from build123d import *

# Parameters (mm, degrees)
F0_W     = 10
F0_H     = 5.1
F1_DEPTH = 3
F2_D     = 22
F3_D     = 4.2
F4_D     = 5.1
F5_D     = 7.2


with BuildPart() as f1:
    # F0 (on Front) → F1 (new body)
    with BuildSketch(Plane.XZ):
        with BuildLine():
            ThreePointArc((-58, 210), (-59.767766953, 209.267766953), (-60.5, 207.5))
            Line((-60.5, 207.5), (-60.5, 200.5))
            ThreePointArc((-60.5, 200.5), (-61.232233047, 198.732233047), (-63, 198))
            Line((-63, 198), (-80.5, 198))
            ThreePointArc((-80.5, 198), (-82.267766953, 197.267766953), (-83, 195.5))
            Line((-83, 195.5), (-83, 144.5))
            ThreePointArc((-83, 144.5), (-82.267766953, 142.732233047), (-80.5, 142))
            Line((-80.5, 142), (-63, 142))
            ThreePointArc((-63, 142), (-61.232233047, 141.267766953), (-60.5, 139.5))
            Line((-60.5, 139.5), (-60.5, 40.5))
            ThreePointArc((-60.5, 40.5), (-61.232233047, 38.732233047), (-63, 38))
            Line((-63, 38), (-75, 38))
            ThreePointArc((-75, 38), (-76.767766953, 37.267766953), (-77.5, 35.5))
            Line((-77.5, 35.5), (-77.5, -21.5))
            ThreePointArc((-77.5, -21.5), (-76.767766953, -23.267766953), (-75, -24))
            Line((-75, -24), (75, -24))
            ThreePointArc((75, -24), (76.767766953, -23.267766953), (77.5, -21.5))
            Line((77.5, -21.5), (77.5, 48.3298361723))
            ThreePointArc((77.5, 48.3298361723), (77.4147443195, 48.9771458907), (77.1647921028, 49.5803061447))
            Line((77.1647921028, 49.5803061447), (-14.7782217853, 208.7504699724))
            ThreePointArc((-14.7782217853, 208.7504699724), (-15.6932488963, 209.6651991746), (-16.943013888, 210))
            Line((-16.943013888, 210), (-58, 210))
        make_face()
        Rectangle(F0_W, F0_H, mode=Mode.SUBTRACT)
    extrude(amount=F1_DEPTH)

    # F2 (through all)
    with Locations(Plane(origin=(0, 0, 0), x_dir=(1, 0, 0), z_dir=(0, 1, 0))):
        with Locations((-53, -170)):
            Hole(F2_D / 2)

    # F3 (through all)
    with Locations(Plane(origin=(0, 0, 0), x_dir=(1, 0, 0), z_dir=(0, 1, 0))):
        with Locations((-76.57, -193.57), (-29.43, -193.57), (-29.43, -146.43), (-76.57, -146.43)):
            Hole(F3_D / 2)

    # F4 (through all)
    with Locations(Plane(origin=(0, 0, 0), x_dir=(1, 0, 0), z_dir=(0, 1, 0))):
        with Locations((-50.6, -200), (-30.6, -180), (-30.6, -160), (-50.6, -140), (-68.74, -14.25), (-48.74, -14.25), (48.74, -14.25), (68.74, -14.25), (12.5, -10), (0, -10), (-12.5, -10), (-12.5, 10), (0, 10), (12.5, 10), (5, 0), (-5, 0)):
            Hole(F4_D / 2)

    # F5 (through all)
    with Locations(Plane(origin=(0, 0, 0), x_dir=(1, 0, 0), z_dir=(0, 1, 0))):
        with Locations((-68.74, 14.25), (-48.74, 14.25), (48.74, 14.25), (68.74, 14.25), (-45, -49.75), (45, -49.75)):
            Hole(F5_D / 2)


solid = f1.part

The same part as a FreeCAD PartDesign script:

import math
import FreeCAD as App
import Part
import Sketcher


def add_polygon(sketch, points):
    """Adds a closed chain of lines whose ends are joined by coincident constraints."""
    first, n = sketch.GeometryCount, len(points)
    for a, b in zip(points, points[1:] + points[:1]):
        sketch.addGeometry(Part.LineSegment(App.Vector(*a, 0), App.Vector(*b, 0)), False)
    for i in range(n):
        sketch.addConstraint(Sketcher.Constraint("Coincident", first + i, 2, first + (i + 1) % n, 1))

doc = App.newDocument("Part")
body = doc.addObject("PartDesign::Body", "Body")

sketch1 = body.newObject("Sketcher::SketchObject", "Sketch")
sketch1.AttachmentSupport = (doc.getObject("XZ_Plane"), [""])
sketch1.MapMode = "FlatFace"
sketch1.addGeometry(Part.ArcOfCircle(Part.Circle(App.Vector(-58, 207.5, 0), App.Vector(0, 0, 1), 2.5), math.radians(90), math.radians(180)), False)
sketch1.addGeometry(Part.LineSegment(App.Vector(-60.5, 207.5, 0), App.Vector(-60.5, 200.5, 0)), False)
sketch1.addGeometry(Part.ArcOfCircle(Part.Circle(App.Vector(-63, 200.5, 0), App.Vector(0, 0, 1), 2.5), math.radians(-90), math.radians(0)), False)
sketch1.addGeometry(Part.LineSegment(App.Vector(-63, 198, 0), App.Vector(-80.5, 198, 0)), False)
sketch1.addGeometry(Part.ArcOfCircle(Part.Circle(App.Vector(-80.5, 195.5, 0), App.Vector(0, 0, 1), 2.5), math.radians(90), math.radians(180)), False)
sketch1.addGeometry(Part.LineSegment(App.Vector(-83, 195.5, 0), App.Vector(-83, 144.5, 0)), False)
sketch1.addGeometry(Part.ArcOfCircle(Part.Circle(App.Vector(-80.5, 144.5, 0), App.Vector(0, 0, 1), 2.5), math.radians(180), math.radians(270)), False)
sketch1.addGeometry(Part.LineSegment(App.Vector(-80.5, 142, 0), App.Vector(-63, 142, 0)), False)
sketch1.addGeometry(Part.ArcOfCircle(Part.Circle(App.Vector(-63, 139.5, 0), App.Vector(0, 0, 1), 2.5), math.radians(0), math.radians(90)), False)
sketch1.addGeometry(Part.LineSegment(App.Vector(-60.5, 139.5, 0), App.Vector(-60.5, 40.5, 0)), False)
sketch1.addGeometry(Part.ArcOfCircle(Part.Circle(App.Vector(-63, 40.5, 0), App.Vector(0, 0, 1), 2.5), math.radians(-90), math.radians(0)), False)
sketch1.addGeometry(Part.LineSegment(App.Vector(-63, 38, 0), App.Vector(-75, 38, 0)), False)
sketch1.addGeometry(Part.ArcOfCircle(Part.Circle(App.Vector(-75, 35.5, 0), App.Vector(0, 0, 1), 2.5), math.radians(90), math.radians(180)), False)
sketch1.addGeometry(Part.LineSegment(App.Vector(-77.5, 35.5, 0), App.Vector(-77.5, -21.5, 0)), False)
sketch1.addGeometry(Part.ArcOfCircle(Part.Circle(App.Vector(-75, -21.5, 0), App.Vector(0, 0, 1), 2.5), math.radians(180), math.radians(270)), False)
sketch1.addGeometry(Part.LineSegment(App.Vector(-75, -24, 0), App.Vector(75, -24, 0)), False)
sketch1.addGeometry(Part.ArcOfCircle(Part.Circle(App.Vector(75, -21.5, 0), App.Vector(0, 0, 1), 2.5), math.radians(-90), math.radians(0)), False)
sketch1.addGeometry(Part.LineSegment(App.Vector(77.5, -21.5, 0), App.Vector(77.5, 48.3, 0)), False)
sketch1.addGeometry(Part.ArcOfCircle(Part.Circle(App.Vector(75, 48.3, 0), App.Vector(0, 0, 1), 2.5), math.radians(0), math.radians(30)), False)
sketch1.addGeometry(Part.LineSegment(App.Vector(77.2, 49.6, 0), App.Vector(-14.8, 208.8, 0)), False)
sketch1.addGeometry(Part.ArcOfCircle(Part.Circle(App.Vector(-16.9, 207.5, 0), App.Vector(0, 0, 1), 2.5), math.radians(30), math.radians(90)), False)
sketch1.addGeometry(Part.LineSegment(App.Vector(-16.9, 210, 0), App.Vector(-58, 210, 0)), False)
add_polygon(sketch1, [(5, -2.5), (-5, -2.5), (-5, 2.5), (5, 2.5)])
sketch1.addConstraint(Sketcher.Constraint("Tangent", 0, 2, 1, 1))
sketch1.addConstraint(Sketcher.Constraint("Tangent", 1, 2, 2, 2))
sketch1.addConstraint(Sketcher.Constraint("Tangent", 2, 1, 3, 1))
sketch1.addConstraint(Sketcher.Constraint("Tangent", 3, 2, 4, 1))
sketch1.addConstraint(Sketcher.Constraint("Tangent", 4, 2, 5, 1))
sketch1.addConstraint(Sketcher.Constraint("Tangent", 5, 2, 6, 1))
sketch1.addConstraint(Sketcher.Constraint("Tangent", 6, 2, 7, 1))
sketch1.addConstraint(Sketcher.Constraint("Tangent", 7, 2, 8, 2))
sketch1.addConstraint(Sketcher.Constraint("Tangent", 8, 1, 9, 1))
sketch1.addConstraint(Sketcher.Constraint("Tangent", 9, 2, 10, 2))
sketch1.addConstraint(Sketcher.Constraint("Tangent", 10, 1, 11, 1))
sketch1.addConstraint(Sketcher.Constraint("Tangent", 11, 2, 12, 1))
sketch1.addConstraint(Sketcher.Constraint("Tangent", 12, 2, 13, 1))
sketch1.addConstraint(Sketcher.Constraint("Tangent", 13, 2, 14, 1))
sketch1.addConstraint(Sketcher.Constraint("Tangent", 14, 2, 15, 1))
sketch1.addConstraint(Sketcher.Constraint("Tangent", 15, 2, 16, 1))
sketch1.addConstraint(Sketcher.Constraint("Tangent", 16, 2, 17, 1))
sketch1.addConstraint(Sketcher.Constraint("Tangent", 17, 2, 18, 1))
sketch1.addConstraint(Sketcher.Constraint("Tangent", 18, 2, 19, 1))
sketch1.addConstraint(Sketcher.Constraint("Tangent", 19, 2, 20, 1))
sketch1.addConstraint(Sketcher.Constraint("Tangent", 20, 2, 21, 1))
sketch1.addConstraint(Sketcher.Constraint("Tangent", 21, 2, 0, 1))
sketch1.addConstraint(Sketcher.Constraint("Vertical", 1))
sketch1.addConstraint(Sketcher.Constraint("Horizontal", 3))
sketch1.addConstraint(Sketcher.Constraint("Vertical", 5))
sketch1.addConstraint(Sketcher.Constraint("Horizontal", 7))
sketch1.addConstraint(Sketcher.Constraint("Vertical", 9))
sketch1.addConstraint(Sketcher.Constraint("Horizontal", 11))
sketch1.addConstraint(Sketcher.Constraint("Vertical", 13))
sketch1.addConstraint(Sketcher.Constraint("Horizontal", 15))
sketch1.addConstraint(Sketcher.Constraint("Vertical", 17))
sketch1.addConstraint(Sketcher.Constraint("Horizontal", 21))
sketch1.addConstraint(Sketcher.Constraint("Horizontal", 22))
sketch1.addConstraint(Sketcher.Constraint("Vertical", 23))
sketch1.addConstraint(Sketcher.Constraint("Horizontal", 24))
sketch1.addConstraint(Sketcher.Constraint("Vertical", 25))
sketch1.addConstraint(Sketcher.Constraint("Equal", 0, 2))
sketch1.addConstraint(Sketcher.Constraint("Equal", 2, 4))
sketch1.addConstraint(Sketcher.Constraint("Equal", 4, 6))
sketch1.addConstraint(Sketcher.Constraint("Equal", 6, 8))
sketch1.addConstraint(Sketcher.Constraint("Equal", 8, 10))
sketch1.addConstraint(Sketcher.Constraint("Equal", 10, 12))
sketch1.addConstraint(Sketcher.Constraint("Equal", 12, 14))
sketch1.addConstraint(Sketcher.Constraint("Equal", 14, 16))
sketch1.addConstraint(Sketcher.Constraint("Equal", 16, 18))
sketch1.addConstraint(Sketcher.Constraint("Equal", 18, 20))
sketch1.addConstraint(Sketcher.Constraint("Symmetric", 22, 2, 24, 2, -1, 1))
sketch1.addConstraint(Sketcher.Constraint("Vertical", 2, 3, 8, 3))
sketch1.addConstraint(Sketcher.Constraint("Radius", 0, 2.5))
sketch1.addConstraint(Sketcher.Constraint("DistanceX", 11, 2, 11, 1, 12.0))
sketch1.addConstraint(Sketcher.Constraint("DistanceX", 15, 1, 15, 2, 150.0))
sketch1.addConstraint(Sketcher.Constraint("DistanceX", 22, 2, 22, 1, 10.0))
sketch1.addConstraint(Sketcher.Constraint("DistanceY", 1, 2, 1, 1, 7.0))
sketch1.addConstraint(Sketcher.Constraint("DistanceY", 5, 2, 5, 1, 51.0))
sketch1.addConstraint(Sketcher.Constraint("DistanceY", 9, 2, 9, 1, 99.0))
sketch1.addConstraint(Sketcher.Constraint("DistanceY", 13, 2, 13, 1, 57.0))
sketch1.addConstraint(Sketcher.Constraint("DistanceX", 3, 2, 3, 1, 17.5))
sketch1.addConstraint(Sketcher.Constraint("DistanceY", 23, 1, 23, 2, 5.1))
sketch1.addConstraint(Sketcher.Constraint("DistanceX", 0, 3, -1, 1, 58.0))
sketch1.addConstraint(Sketcher.Constraint("DistanceY", -1, 1, 2, 1, 198.0))
sketch1.addConstraint(Sketcher.Constraint("DistanceX", 21, 2, 21, 1, 41.056986))
sketch1.addConstraint(Sketcher.Constraint("DistanceY", 17, 1, 17, 2, 69.829836))
pad1 = body.newObject("PartDesign::Pad", "Pad")
pad1.Profile = sketch1
pad1.Length = 3

sketch2 = body.newObject("Sketcher::SketchObject", "Sketch001")
sketch2.AttachmentSupport = (doc.getObject("XZ_Plane"), [""])
sketch2.MapMode = "FlatFace"
sketch2.addGeometry(Part.Circle(App.Vector(-53, 170, 0), App.Vector(0, 0, 1), 11), False)
sketch2.addConstraint(Sketcher.Constraint("Diameter", 0, 22.0))
sketch2.addConstraint(Sketcher.Constraint("DistanceX", 0, 3, -1, 1, 53.0))
sketch2.addConstraint(Sketcher.Constraint("DistanceY", -1, 1, 0, 3, 170.0))
doc.recompute()
hole = body.newObject("PartDesign::Hole", "Hole")
hole.Profile = sketch2
hole.ThreadType = "None"
hole.Diameter = 22
hole.DepthType = "ThroughAll"
hole.Reversed = True

sketch3 = body.newObject("Sketcher::SketchObject", "Sketch002")
sketch3.AttachmentSupport = (doc.getObject("XZ_Plane"), [""])
sketch3.MapMode = "FlatFace"
sketch3.addGeometry(Part.Circle(App.Vector(-76.6, 193.6, 0), App.Vector(0, 0, 1), 2.1), False)
sketch3.addGeometry(Part.Circle(App.Vector(-29.4, 193.6, 0), App.Vector(0, 0, 1), 2.1), False)
sketch3.addGeometry(Part.Circle(App.Vector(-29.4, 146.4, 0), App.Vector(0, 0, 1), 2.1), False)
sketch3.addGeometry(Part.Circle(App.Vector(-76.6, 146.4, 0), App.Vector(0, 0, 1), 2.1), False)
sketch3.addConstraint(Sketcher.Constraint("Equal", 0, 1))
sketch3.addConstraint(Sketcher.Constraint("Equal", 1, 2))
sketch3.addConstraint(Sketcher.Constraint("Equal", 2, 3))
sketch3.addConstraint(Sketcher.Constraint("Horizontal", 0, 3, 1, 3))
sketch3.addConstraint(Sketcher.Constraint("Horizontal", 2, 3, 3, 3))
sketch3.addConstraint(Sketcher.Constraint("Vertical", 1, 3, 2, 3))
sketch3.addConstraint(Sketcher.Constraint("Vertical", 0, 3, 3, 3))
sketch3.addConstraint(Sketcher.Constraint("Diameter", 0, 4.2))
sketch3.addConstraint(Sketcher.Constraint("DistanceX", 0, 3, -1, 1, 76.57))
sketch3.addConstraint(Sketcher.Constraint("DistanceY", -1, 1, 0, 3, 193.57))
sketch3.addConstraint(Sketcher.Constraint("DistanceX", 1, 3, -1, 1, 29.43))
sketch3.addConstraint(Sketcher.Constraint("DistanceY", -1, 1, 2, 3, 146.43))
doc.recompute()
hole2 = body.newObject("PartDesign::Hole", "Hole001")
hole2.Profile = sketch3
hole2.ThreadType = "None"
hole2.Diameter = 4.2
hole2.DepthType = "ThroughAll"
hole2.Reversed = True

sketch4 = body.newObject("Sketcher::SketchObject", "Sketch003")
sketch4.AttachmentSupport = (doc.getObject("XZ_Plane"), [""])
sketch4.MapMode = "FlatFace"
sketch4.addGeometry(Part.Circle(App.Vector(-50.6, 200, 0), App.Vector(0, 0, 1), 2.5), False)
sketch4.addGeometry(Part.Circle(App.Vector(-30.6, 180, 0), App.Vector(0, 0, 1), 2.5), False)
sketch4.addGeometry(Part.Circle(App.Vector(-30.6, 160, 0), App.Vector(0, 0, 1), 2.5), False)
sketch4.addGeometry(Part.Circle(App.Vector(-50.6, 140, 0), App.Vector(0, 0, 1), 2.5), False)
sketch4.addGeometry(Part.Circle(App.Vector(-68.7, 14.2, 0), App.Vector(0, 0, 1), 2.5), False)
sketch4.addGeometry(Part.Circle(App.Vector(-48.7, 14.2, 0), App.Vector(0, 0, 1), 2.5), False)
sketch4.addGeometry(Part.Circle(App.Vector(48.7, 14.2, 0), App.Vector(0, 0, 1), 2.5), False)
sketch4.addGeometry(Part.Circle(App.Vector(68.7, 14.2, 0), App.Vector(0, 0, 1), 2.5), False)
sketch4.addGeometry(Part.Circle(App.Vector(12.5, 10, 0), App.Vector(0, 0, 1), 2.5), False)
sketch4.addGeometry(Part.Circle(App.Vector(0, 10, 0), App.Vector(0, 0, 1), 2.5), False)
sketch4.addGeometry(Part.Circle(App.Vector(-12.5, 10, 0), App.Vector(0, 0, 1), 2.5), False)
sketch4.addGeometry(Part.Circle(App.Vector(-12.5, -10, 0), App.Vector(0, 0, 1), 2.5), False)
sketch4.addGeometry(Part.Circle(App.Vector(0, -10, 0), App.Vector(0, 0, 1), 2.5), False)
sketch4.addGeometry(Part.Circle(App.Vector(12.5, -10, 0), App.Vector(0, 0, 1), 2.5), False)
sketch4.addGeometry(Part.Circle(App.Vector(5, 0, 0), App.Vector(0, 0, 1), 2.5), False)
sketch4.addGeometry(Part.Circle(App.Vector(-5, 0, 0), App.Vector(0, 0, 1), 2.5), False)
sketch4.addConstraint(Sketcher.Constraint("Equal", 0, 1))
sketch4.addConstraint(Sketcher.Constraint("Equal", 1, 2))
sketch4.addConstraint(Sketcher.Constraint("Equal", 2, 3))
sketch4.addConstraint(Sketcher.Constraint("Equal", 3, 4))
sketch4.addConstraint(Sketcher.Constraint("Equal", 4, 5))
sketch4.addConstraint(Sketcher.Constraint("Equal", 5, 6))
sketch4.addConstraint(Sketcher.Constraint("Equal", 6, 7))
sketch4.addConstraint(Sketcher.Constraint("Equal", 7, 8))
sketch4.addConstraint(Sketcher.Constraint("Equal", 8, 9))
sketch4.addConstraint(Sketcher.Constraint("Equal", 9, 10))
sketch4.addConstraint(Sketcher.Constraint("Equal", 10, 11))
sketch4.addConstraint(Sketcher.Constraint("Equal", 11, 12))
sketch4.addConstraint(Sketcher.Constraint("Equal", 12, 13))
sketch4.addConstraint(Sketcher.Constraint("Equal", 13, 14))
sketch4.addConstraint(Sketcher.Constraint("Equal", 14, 15))
sketch4.addConstraint(Sketcher.Constraint("Symmetric", 8, 3, 11, 3, -1, 1))
sketch4.addConstraint(Sketcher.Constraint("Symmetric", 9, 3, 12, 3, -1, 1))
sketch4.addConstraint(Sketcher.Constraint("Symmetric", 10, 3, 13, 3, -1, 1))
sketch4.addConstraint(Sketcher.Constraint("Symmetric", 14, 3, 15, 3, -1, 1))
sketch4.addConstraint(Sketcher.Constraint("Symmetric", 5, 3, 6, 3, -2))
sketch4.addConstraint(Sketcher.Constraint("Symmetric", 4, 3, 7, 3, -2))
sketch4.addConstraint(Sketcher.Constraint("Symmetric", 8, 3, 10, 3, -2))
sketch4.addConstraint(Sketcher.Constraint("PointOnObject", 9, 3, -2))
sketch4.addConstraint(Sketcher.Constraint("PointOnObject", 14, 3, -1))
sketch4.addConstraint(Sketcher.Constraint("Horizontal", 4, 3, 5, 3))
sketch4.addConstraint(Sketcher.Constraint("Horizontal", 8, 3, 9, 3))
sketch4.addConstraint(Sketcher.Constraint("Vertical", 1, 3, 2, 3))
sketch4.addConstraint(Sketcher.Constraint("Vertical", 0, 3, 3, 3))
sketch4.addConstraint(Sketcher.Constraint("Diameter", 0, 5.1))
sketch4.addConstraint(Sketcher.Constraint("DistanceY", -1, 1, 0, 3, 200.0))
sketch4.addConstraint(Sketcher.Constraint("DistanceY", -1, 1, 1, 3, 180.0))
sketch4.addConstraint(Sketcher.Constraint("DistanceY", -1, 1, 2, 3, 160.0))
sketch4.addConstraint(Sketcher.Constraint("DistanceY", -1, 1, 3, 3, 140.0))
sketch4.addConstraint(Sketcher.Constraint("DistanceY", -1, 1, 8, 3, 10.0))
sketch4.addConstraint(Sketcher.Constraint("DistanceX", -1, 1, 14, 3, 5.0))
sketch4.addConstraint(Sketcher.Constraint("DistanceX", 0, 3, 1, 3, 20.0))
sketch4.addConstraint(Sketcher.Constraint("DistanceX", 4, 3, 5, 3, 20.0))
sketch4.addConstraint(Sketcher.Constraint("DistanceX", 10, 3, 8, 3, 25.0))
sketch4.addConstraint(Sketcher.Constraint("DistanceX", 0, 3, -1, 1, 50.6))
sketch4.addConstraint(Sketcher.Constraint("DistanceX", 4, 3, -1, 1, 68.74))
sketch4.addConstraint(Sketcher.Constraint("DistanceY", -1, 1, 4, 3, 14.25))
doc.recompute()
hole3 = body.newObject("PartDesign::Hole", "Hole002")
hole3.Profile = sketch4
hole3.ThreadType = "None"
hole3.Diameter = 5.1
hole3.DepthType = "ThroughAll"
hole3.Reversed = True

sketch5 = body.newObject("Sketcher::SketchObject", "Sketch004")
sketch5.AttachmentSupport = (doc.getObject("XZ_Plane"), [""])
sketch5.MapMode = "FlatFace"
sketch5.addGeometry(Part.Circle(App.Vector(-68.7, -14.2, 0), App.Vector(0, 0, 1), 3.6), False)
sketch5.addGeometry(Part.Circle(App.Vector(-48.7, -14.2, 0), App.Vector(0, 0, 1), 3.6), False)
sketch5.addGeometry(Part.Circle(App.Vector(48.7, -14.2, 0), App.Vector(0, 0, 1), 3.6), False)
sketch5.addGeometry(Part.Circle(App.Vector(68.7, -14.2, 0), App.Vector(0, 0, 1), 3.6), False)
sketch5.addGeometry(Part.Circle(App.Vector(-45, 49.8, 0), App.Vector(0, 0, 1), 3.6), False)
sketch5.addGeometry(Part.Circle(App.Vector(45, 49.8, 0), App.Vector(0, 0, 1), 3.6), False)
sketch5.addConstraint(Sketcher.Constraint("Equal", 0, 1))
sketch5.addConstraint(Sketcher.Constraint("Equal", 1, 2))
sketch5.addConstraint(Sketcher.Constraint("Equal", 2, 3))
sketch5.addConstraint(Sketcher.Constraint("Equal", 3, 4))
sketch5.addConstraint(Sketcher.Constraint("Equal", 4, 5))
sketch5.addConstraint(Sketcher.Constraint("Symmetric", 1, 3, 2, 3, -2))
sketch5.addConstraint(Sketcher.Constraint("Symmetric", 0, 3, 3, 3, -2))
sketch5.addConstraint(Sketcher.Constraint("Symmetric", 4, 3, 5, 3, -2))
sketch5.addConstraint(Sketcher.Constraint("Horizontal", 0, 3, 1, 3))
sketch5.addConstraint(Sketcher.Constraint("Diameter", 0, 7.2))
sketch5.addConstraint(Sketcher.Constraint("DistanceX", 4, 3, -1, 1, 45.0))
sketch5.addConstraint(Sketcher.Constraint("DistanceX", 0, 3, 1, 3, 20.0))
sketch5.addConstraint(Sketcher.Constraint("DistanceY", 1, 3, 4, 3, 64.0))
sketch5.addConstraint(Sketcher.Constraint("DistanceX", 0, 3, -1, 1, 68.74))
sketch5.addConstraint(Sketcher.Constraint("DistanceY", 0, 3, -1, 1, 14.25))
doc.recompute()
hole4 = body.newObject("PartDesign::Hole", "Hole003")
hole4.Profile = sketch5
hole4.ThreadType = "None"
hole4.Diameter = 7.2
hole4.DepthType = "ThroughAll"
hole4.Reversed = True

doc.recompute()
